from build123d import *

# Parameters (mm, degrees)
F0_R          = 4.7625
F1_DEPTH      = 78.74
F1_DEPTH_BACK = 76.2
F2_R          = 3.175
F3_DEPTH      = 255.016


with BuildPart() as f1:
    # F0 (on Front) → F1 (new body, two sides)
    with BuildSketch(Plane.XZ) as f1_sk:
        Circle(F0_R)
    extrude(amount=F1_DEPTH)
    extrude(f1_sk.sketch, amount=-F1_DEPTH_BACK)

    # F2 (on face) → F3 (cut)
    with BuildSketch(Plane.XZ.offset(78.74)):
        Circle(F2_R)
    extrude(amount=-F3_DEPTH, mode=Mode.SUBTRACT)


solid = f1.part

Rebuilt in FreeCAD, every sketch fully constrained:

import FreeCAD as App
import Part
import Sketcher
from FreeCAD import Vector
Q = App.Units.Quantity

doc = App.newDocument("Part")
body = doc.addObject("PartDesign::Body", "Body")

# Sketch on XZ plane
sketch1 = doc.addObject("Sketcher::SketchObject", "Sketch")
body.addObject(sketch1)
sketch1.AttachmentSupport = (doc.XZ_Plane, [""])
sketch1.MapMode = "FlatFace"
sketch1.addGeometry(Part.Circle(Vector(0, 0, 0), Vector(0, 0, 1), 4.8), False)
sketch1.addConstraint([
    Sketcher.Constraint("Coincident", 0, 3, -1, 1),
    Sketcher.Constraint("Diameter", 0, Q("0.375 in")),
])
pad1 = doc.addObject("PartDesign::Pad", "Pad")
body.addObject(pad1)
pad1.Profile = sketch1
pad1.Type = "TwoLengths"
pad1.Length = Q("3.1 in")
pad1.Length2 = Q("3 in")

# Sketch on XZ plane
sketch2 = doc.addObject("Sketcher::SketchObject", "Sketch001")
body.addObject(sketch2)
sketch2.AttachmentSupport = (doc.XZ_Plane, [""])
sketch2.MapMode = "FlatFace"
sketch2.AttachmentOffset = App.Placement(Vector(0, 0, 3.1 * 25.4), App.Rotation())
sketch2.addGeometry(Part.Circle(Vector(0, 0, 0), Vector(0, 0, 1), 3.2), False)
sketch2.addConstraint([
    Sketcher.Constraint("Coincident", 0, 3, -1, 1),
    Sketcher.Constraint("Diameter", 0, Q("0.25 in")),
])
pocket1 = doc.addObject("PartDesign::Pocket", "Pocket")
body.addObject(pocket1)
pocket1.Profile = sketch2
pocket1.Length = Q("10.04 in")

doc.recompute()
